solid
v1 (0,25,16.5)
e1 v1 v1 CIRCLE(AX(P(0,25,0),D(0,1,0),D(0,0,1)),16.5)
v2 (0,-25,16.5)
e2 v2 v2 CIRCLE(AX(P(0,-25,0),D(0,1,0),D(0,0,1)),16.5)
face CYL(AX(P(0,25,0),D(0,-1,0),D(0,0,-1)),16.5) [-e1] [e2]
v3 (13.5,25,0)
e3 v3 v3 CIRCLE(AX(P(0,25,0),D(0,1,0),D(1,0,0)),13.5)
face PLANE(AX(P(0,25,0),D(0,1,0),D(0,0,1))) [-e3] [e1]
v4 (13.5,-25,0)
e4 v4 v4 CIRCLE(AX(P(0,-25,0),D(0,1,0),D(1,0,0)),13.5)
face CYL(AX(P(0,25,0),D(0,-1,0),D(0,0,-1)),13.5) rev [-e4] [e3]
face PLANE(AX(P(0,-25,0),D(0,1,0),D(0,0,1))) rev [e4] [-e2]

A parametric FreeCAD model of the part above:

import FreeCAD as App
import Part
import Sketcher
Q = App.Units.Quantity

doc = App.newDocument("Part")
params = doc.addObject("Spreadsheet::Sheet", "Params")
for row, (alias, value) in enumerate([
    ("sketch1_diameter", "33 mm"),
    ("sketch1_diameter2", "27 mm"),
    ("pad1_length", "50 mm"),
], start=1):
    params.set(f"A{row}", alias)
    params.set(f"B{row}", "=" + value)
    params.setAlias(f"B{row}", alias)

body = doc.addObject("PartDesign::Body", "Body")

sketch1 = doc.addObject("Sketcher::SketchObject", "Sketch")
body.addObject(sketch1)
sketch1.AttachmentSupport = (doc.XZ_Plane, [""])
sketch1.MapMode = "FlatFace"
sketch1.addGeometry(Part.Circle(App.Vector(0, 0, 0), App.Vector(0, 0, 1), 16), False)
sketch1.addGeometry(Part.Circle(App.Vector(0, 0, 0), App.Vector(0, 0, 1), 14), False)
sketch1.addConstraint(Sketcher.Constraint("Coincident", 0, 3, -1, 1))
sketch1.addConstraint(Sketcher.Constraint("Coincident", 1, 3, -1, 1))
sketch1.addConstraint(Sketcher.Constraint("Diameter", 0, Q("33 mm")))
sketch1.addConstraint(Sketcher.Constraint("Diameter", 1, Q("27 mm")))
sketch1.setExpression("Constraints[2]", "Params.sketch1_diameter")
sketch1.setExpression("Constraints[3]", "Params.sketch1_diameter2")
pad1 = doc.addObject("PartDesign::Pad", "Pad")
body.addObject(pad1)
pad1.Profile = sketch1
pad1.setExpression("Length", "Params.pad1_length")
pad1.Midplane = True

doc.recompute()
